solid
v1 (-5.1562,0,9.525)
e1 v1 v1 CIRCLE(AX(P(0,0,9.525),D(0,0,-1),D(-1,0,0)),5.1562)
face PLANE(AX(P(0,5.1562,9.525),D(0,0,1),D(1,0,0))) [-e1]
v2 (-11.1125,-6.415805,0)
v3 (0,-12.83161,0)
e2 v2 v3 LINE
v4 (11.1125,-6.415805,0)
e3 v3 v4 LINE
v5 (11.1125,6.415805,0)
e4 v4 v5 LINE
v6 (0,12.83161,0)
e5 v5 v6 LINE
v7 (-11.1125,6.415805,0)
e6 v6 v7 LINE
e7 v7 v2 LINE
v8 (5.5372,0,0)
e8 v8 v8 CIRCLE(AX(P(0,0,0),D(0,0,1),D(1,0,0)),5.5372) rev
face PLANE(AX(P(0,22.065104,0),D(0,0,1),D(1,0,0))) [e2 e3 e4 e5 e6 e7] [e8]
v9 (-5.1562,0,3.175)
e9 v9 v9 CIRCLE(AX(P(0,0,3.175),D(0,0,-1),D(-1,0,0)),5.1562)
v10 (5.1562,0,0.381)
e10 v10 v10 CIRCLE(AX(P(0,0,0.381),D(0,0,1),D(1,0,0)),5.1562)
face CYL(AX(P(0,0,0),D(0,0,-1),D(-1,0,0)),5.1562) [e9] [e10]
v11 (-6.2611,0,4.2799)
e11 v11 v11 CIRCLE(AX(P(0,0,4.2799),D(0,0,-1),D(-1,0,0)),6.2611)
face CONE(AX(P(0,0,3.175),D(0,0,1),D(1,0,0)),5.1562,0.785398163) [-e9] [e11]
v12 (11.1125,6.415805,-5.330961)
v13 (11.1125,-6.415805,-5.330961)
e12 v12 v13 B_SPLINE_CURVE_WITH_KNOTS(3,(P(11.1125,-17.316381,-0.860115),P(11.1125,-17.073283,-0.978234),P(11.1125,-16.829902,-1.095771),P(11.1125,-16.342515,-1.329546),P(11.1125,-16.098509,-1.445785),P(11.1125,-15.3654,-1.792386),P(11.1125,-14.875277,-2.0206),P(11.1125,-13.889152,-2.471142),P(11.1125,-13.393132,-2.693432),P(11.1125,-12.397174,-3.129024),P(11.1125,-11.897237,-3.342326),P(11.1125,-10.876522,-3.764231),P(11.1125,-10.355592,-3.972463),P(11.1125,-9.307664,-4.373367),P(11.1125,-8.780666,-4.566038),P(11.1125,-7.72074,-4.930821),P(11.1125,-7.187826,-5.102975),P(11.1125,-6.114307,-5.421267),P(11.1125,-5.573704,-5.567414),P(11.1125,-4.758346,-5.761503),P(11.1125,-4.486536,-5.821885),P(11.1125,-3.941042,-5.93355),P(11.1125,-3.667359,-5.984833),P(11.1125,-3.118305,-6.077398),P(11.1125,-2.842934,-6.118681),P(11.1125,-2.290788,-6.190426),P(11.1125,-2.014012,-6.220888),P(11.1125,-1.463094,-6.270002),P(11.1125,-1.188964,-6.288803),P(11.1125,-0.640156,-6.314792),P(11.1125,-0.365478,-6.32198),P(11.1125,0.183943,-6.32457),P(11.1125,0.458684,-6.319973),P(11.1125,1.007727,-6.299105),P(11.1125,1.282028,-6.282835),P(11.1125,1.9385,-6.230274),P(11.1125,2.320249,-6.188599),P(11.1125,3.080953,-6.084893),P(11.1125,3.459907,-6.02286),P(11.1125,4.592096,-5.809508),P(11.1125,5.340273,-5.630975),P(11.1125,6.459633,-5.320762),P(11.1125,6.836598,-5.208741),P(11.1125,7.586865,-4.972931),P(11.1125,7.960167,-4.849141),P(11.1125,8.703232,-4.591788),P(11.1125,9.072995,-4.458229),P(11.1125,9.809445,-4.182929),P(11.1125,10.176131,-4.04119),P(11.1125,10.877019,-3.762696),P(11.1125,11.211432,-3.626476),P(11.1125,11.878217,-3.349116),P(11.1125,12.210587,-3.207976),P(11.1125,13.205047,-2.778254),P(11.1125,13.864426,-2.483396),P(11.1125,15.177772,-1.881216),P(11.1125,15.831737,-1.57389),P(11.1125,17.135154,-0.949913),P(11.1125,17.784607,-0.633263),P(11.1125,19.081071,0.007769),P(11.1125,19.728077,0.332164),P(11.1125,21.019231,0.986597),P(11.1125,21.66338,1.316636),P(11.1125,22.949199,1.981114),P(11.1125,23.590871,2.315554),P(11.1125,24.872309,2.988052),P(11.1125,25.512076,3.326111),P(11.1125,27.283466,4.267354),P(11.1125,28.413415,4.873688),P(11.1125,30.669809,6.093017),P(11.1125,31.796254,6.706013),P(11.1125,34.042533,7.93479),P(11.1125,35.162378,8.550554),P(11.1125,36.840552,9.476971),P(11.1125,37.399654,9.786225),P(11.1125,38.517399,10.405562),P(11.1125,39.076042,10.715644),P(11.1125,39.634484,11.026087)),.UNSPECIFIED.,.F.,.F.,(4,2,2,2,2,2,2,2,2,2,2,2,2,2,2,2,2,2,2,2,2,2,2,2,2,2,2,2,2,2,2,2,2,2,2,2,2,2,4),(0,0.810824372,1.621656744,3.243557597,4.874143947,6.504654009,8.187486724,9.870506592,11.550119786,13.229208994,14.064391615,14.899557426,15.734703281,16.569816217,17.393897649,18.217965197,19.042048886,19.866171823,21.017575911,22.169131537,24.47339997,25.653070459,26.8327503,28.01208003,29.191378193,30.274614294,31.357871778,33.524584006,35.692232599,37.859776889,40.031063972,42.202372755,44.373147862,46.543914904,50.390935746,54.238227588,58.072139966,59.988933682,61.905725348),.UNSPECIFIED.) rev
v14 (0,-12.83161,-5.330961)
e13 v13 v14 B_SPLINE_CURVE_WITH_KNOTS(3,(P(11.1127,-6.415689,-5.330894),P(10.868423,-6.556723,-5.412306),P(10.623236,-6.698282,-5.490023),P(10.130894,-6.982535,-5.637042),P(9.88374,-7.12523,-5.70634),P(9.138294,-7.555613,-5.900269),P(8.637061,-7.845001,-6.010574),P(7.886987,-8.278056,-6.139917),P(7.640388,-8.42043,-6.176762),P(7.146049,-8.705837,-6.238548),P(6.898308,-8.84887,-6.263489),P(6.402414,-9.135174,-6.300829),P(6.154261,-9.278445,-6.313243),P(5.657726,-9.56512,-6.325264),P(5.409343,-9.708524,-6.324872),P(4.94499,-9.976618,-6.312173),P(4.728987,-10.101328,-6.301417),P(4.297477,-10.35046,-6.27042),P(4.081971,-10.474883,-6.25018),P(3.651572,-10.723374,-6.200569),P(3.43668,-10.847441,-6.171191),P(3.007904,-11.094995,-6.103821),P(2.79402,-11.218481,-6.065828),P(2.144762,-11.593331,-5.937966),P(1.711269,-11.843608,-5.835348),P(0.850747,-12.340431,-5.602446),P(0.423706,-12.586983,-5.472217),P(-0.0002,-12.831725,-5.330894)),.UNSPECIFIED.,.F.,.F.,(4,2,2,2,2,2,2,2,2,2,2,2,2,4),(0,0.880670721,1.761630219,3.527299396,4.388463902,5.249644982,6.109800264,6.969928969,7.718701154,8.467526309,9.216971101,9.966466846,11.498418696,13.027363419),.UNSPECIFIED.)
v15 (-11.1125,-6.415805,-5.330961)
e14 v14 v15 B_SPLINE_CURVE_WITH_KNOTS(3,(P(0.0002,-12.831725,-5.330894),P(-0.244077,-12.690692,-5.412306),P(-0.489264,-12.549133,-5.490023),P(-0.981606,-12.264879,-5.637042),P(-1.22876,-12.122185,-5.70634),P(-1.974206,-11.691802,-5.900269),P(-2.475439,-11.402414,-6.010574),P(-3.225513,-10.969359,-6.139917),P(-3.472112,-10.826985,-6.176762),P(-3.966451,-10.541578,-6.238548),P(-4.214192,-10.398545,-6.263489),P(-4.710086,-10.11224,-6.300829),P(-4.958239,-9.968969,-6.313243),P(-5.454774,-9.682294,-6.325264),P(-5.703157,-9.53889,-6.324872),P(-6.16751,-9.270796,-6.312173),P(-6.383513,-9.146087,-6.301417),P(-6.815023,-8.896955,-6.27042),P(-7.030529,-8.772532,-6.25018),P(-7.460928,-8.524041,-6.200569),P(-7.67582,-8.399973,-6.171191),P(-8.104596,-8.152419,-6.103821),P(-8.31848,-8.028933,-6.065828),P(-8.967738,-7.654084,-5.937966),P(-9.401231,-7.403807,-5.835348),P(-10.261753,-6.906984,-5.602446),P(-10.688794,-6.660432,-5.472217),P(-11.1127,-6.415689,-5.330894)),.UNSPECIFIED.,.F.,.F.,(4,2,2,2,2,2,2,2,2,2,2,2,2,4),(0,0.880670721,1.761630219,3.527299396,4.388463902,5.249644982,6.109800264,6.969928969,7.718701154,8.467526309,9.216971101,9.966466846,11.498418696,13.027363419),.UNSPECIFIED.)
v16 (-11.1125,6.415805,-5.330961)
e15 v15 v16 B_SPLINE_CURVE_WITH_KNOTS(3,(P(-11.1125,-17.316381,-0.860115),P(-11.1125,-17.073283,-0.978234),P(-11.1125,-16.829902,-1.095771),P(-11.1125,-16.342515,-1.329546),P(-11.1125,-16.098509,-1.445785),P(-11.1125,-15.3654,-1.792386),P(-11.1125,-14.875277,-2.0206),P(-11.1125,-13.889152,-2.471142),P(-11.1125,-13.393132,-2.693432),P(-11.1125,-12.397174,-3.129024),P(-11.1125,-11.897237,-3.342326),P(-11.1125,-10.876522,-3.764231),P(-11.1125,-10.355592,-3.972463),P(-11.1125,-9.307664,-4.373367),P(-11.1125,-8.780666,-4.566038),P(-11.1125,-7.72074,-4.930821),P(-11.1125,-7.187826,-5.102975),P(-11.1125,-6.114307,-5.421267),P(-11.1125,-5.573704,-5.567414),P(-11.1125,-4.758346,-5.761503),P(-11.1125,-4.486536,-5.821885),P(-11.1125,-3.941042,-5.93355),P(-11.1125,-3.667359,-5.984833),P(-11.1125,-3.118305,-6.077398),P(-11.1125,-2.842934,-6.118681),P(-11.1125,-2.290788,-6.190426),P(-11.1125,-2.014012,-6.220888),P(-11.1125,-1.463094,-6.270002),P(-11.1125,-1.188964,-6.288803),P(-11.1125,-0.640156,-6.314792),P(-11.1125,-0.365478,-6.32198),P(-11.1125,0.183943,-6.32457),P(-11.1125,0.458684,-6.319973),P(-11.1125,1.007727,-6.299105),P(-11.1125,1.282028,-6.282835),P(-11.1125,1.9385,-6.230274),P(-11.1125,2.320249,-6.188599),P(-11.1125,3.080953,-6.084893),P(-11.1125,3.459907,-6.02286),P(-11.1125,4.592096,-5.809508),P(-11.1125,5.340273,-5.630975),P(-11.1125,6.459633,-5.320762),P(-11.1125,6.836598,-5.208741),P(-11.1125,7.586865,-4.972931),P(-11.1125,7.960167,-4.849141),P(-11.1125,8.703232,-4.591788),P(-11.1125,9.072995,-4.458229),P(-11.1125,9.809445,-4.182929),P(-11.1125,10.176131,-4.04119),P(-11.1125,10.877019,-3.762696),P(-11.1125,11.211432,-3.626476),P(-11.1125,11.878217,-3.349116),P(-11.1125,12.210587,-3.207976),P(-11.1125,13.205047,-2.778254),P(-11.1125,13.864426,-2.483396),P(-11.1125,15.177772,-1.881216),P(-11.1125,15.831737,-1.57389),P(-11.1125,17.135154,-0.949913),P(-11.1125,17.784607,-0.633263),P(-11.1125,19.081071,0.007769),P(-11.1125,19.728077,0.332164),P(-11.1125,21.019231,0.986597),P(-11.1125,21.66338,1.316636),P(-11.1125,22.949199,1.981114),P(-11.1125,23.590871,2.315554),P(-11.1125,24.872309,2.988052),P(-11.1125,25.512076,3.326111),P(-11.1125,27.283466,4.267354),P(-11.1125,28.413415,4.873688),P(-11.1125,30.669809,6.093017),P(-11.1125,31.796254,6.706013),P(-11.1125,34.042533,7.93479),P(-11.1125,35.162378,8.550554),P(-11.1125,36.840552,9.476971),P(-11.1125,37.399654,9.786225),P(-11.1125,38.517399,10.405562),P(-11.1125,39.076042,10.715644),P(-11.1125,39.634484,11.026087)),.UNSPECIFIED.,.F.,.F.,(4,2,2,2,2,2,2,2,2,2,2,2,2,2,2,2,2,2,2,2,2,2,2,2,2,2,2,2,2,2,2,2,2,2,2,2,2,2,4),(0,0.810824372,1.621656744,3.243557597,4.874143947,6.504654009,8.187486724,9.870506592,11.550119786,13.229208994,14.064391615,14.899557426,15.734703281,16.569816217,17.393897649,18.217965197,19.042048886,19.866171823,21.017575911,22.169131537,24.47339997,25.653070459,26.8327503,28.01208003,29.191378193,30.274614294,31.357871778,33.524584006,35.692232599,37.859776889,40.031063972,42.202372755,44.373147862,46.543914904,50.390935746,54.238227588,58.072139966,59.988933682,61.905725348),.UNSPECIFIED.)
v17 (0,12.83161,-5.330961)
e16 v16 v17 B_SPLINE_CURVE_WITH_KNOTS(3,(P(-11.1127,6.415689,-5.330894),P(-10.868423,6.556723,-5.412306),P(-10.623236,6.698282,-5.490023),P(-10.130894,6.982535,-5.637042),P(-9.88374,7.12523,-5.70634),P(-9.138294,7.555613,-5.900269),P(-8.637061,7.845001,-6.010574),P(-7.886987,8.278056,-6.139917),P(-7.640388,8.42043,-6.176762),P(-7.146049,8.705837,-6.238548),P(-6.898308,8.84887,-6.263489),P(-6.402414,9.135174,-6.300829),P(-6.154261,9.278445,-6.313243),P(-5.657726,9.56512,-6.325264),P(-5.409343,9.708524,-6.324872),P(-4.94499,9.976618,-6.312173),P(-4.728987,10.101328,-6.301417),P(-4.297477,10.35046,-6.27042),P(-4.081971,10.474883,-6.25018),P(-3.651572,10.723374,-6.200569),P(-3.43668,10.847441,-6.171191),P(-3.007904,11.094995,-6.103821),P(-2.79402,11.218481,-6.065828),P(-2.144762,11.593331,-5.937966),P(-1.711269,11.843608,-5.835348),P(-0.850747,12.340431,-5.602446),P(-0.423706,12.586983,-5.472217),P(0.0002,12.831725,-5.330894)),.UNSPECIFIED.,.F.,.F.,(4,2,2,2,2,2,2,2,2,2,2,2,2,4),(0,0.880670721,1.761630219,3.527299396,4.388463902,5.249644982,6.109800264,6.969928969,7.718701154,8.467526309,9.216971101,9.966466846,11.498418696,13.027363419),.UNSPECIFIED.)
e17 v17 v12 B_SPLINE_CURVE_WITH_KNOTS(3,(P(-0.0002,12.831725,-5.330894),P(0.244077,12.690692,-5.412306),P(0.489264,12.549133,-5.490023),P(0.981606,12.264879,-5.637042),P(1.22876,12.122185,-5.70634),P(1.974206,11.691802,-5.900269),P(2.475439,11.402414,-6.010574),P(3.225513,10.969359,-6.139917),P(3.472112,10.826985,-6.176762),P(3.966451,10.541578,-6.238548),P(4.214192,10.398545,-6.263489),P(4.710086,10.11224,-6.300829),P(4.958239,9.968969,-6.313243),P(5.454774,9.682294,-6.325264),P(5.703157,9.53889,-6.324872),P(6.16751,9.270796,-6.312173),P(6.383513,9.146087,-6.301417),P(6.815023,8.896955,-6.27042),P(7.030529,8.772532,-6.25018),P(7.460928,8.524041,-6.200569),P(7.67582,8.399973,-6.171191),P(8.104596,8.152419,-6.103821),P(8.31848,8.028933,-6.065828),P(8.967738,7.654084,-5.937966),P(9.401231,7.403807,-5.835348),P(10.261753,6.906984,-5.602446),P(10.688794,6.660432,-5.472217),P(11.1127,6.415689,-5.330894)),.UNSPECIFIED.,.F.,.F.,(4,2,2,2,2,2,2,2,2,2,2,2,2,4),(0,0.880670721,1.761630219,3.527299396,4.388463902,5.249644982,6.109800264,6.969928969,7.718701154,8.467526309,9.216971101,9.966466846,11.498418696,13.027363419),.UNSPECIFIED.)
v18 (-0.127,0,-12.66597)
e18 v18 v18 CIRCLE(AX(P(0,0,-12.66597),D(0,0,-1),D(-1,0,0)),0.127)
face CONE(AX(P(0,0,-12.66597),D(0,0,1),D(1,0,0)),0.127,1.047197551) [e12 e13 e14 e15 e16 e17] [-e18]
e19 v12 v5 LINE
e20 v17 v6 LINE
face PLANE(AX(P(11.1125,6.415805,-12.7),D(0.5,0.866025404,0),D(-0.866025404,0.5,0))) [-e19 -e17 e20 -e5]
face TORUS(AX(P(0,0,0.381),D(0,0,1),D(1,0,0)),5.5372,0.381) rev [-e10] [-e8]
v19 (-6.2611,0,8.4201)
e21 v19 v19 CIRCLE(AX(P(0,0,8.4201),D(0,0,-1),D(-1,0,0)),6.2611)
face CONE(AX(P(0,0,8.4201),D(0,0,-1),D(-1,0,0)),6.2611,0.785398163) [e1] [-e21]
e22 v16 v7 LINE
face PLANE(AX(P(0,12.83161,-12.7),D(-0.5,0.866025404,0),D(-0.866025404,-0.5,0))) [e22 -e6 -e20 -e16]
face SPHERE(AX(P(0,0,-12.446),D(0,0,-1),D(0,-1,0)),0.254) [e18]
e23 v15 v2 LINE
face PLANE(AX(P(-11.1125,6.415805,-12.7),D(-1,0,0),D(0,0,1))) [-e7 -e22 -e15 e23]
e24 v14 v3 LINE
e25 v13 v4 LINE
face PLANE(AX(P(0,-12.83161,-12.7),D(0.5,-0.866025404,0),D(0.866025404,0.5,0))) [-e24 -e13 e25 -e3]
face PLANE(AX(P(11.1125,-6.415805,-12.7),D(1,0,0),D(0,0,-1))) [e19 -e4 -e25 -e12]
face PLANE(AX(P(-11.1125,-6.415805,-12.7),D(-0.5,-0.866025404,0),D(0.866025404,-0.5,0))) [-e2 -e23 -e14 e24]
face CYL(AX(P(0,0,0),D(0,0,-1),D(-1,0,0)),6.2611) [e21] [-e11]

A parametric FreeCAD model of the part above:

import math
import FreeCAD as App
import Part
import Sketcher
Q = App.Units.Quantity


def edges_at(feature, points):
    """Names of the edges that pass closest to the given points."""
    edges = feature.Shape.Edges
    near = lambda p: min(range(len(edges)), key=lambda i: edges[i].distToShape(Part.Vertex(*p))[0])
    return sorted({f"Edge{near(p) + 1}" for p in points})

doc = App.newDocument("Part")
body = doc.addObject("PartDesign::Body", "Body")

sketch1 = body.newObject("Sketcher::SketchObject", "Sketch")
sketch1.AttachmentSupport = (doc.getObject("YZ_Plane"), [""])
sketch1.MapMode = "FlatFace"
sketch1.addGeometry(Part.LineSegment(App.Vector(22.07, 0, 0), App.Vector(5.16, 0, 0)), False)
sketch1.addGeometry(Part.LineSegment(App.Vector(5.16, 0, 0), App.Vector(5.16, 3.17, 0)), False)
sketch1.addGeometry(Part.LineSegment(App.Vector(5.16, 3.17, 0), App.Vector(6.26, 4.28, 0)), False)
sketch1.addGeometry(Part.LineSegment(App.Vector(6.26, 4.28, 0), App.Vector(6.26, 8.42, 0)), False)
sketch1.addGeometry(Part.LineSegment(App.Vector(6.26, 8.42, 0), App.Vector(5.16, 9.53, 0)), False)
sketch1.addGeometry(Part.LineSegment(App.Vector(5.16, 9.53, 0), App.Vector(0, 9.53, 0)), False)
sketch1.addGeometry(Part.LineSegment(App.Vector(0, 9.53, 0), App.Vector(0, -12.7, 0)), False)
sketch1.addGeometry(Part.ArcOfCircle(Part.Circle(App.Vector(0, -12.45, 0), App.Vector(0, 0, 1), 0.25), math.radians(-90), math.radians(-60)), False)
sketch1.addGeometry(Part.LineSegment(App.Vector(0.13, -12.67, 0), App.Vector(22.07, 0, 0)), False)
sketch1.addConstraint(Sketcher.Constraint("Coincident", 0, 2, 1, 1))
sketch1.addConstraint(Sketcher.Constraint("Coincident", 1, 2, 2, 1))
sketch1.addConstraint(Sketcher.Constraint("Coincident", 2, 2, 3, 1))
sketch1.addConstraint(Sketcher.Constraint("Coincident", 3, 2, 4, 1))
sketch1.addConstraint(Sketcher.Constraint("Coincident", 4, 2, 5, 1))
sketch1.addConstraint(Sketcher.Constraint("Coincident", 5, 2, 6, 1))
sketch1.addConstraint(Sketcher.Constraint("Coincident", 6, 2, 7, 1))
sketch1.addConstraint(Sketcher.Constraint("Tangent", 7, 2, 8, 1))
sketch1.addConstraint(Sketcher.Constraint("Coincident", 8, 2, 0, 1))
sketch1.addConstraint(Sketcher.Constraint("Horizontal", 0))
sketch1.addConstraint(Sketcher.Constraint("Vertical", 1))
sketch1.addConstraint(Sketcher.Constraint("Vertical", 3))
sketch1.addConstraint(Sketcher.Constraint("Horizontal", 5))
sketch1.addConstraint(Sketcher.Constraint("Vertical", 6))
sketch1.addConstraint(Sketcher.Constraint("PointOnObject", 7, 3, -2))
sketch1.addConstraint(Sketcher.Constraint("PointOnObject", 0, 2, -1))
sketch1.addConstraint(Sketcher.Constraint("PointOnObject", 5, 2, -2))
sketch1.addConstraint(Sketcher.Constraint("Perpendicular", 2, 4))
sketch1.addConstraint(Sketcher.Constraint("Vertical", 1, 2, 4, 2))
sketch1.addConstraint(Sketcher.Constraint("Equal", 2, 4))
sketch1.addConstraint(Sketcher.Constraint("Radius", 7, Q("0.01 in")))
sketch1.addConstraint(Sketcher.Constraint("Angle", 8, Q("30 deg")))
sketch1.addConstraint(Sketcher.Constraint("DistanceY", 6, 2, -1, 1, Q("0.5 in")))
sketch1.addConstraint(Sketcher.Constraint("DistanceX", 5, 2, 5, 1, Q("0.203 in")))
sketch1.addConstraint(Sketcher.Constraint("DistanceY", 1, 1, 1, 2, Q("0.125 in")))
sketch1.addConstraint(Sketcher.Constraint("DistanceY", 3, 1, 3, 2, Q("0.163 in")))
sketch1.addConstraint(Sketcher.Constraint("DistanceY", 6, 2, 6, 1, Q("0.875 in")))
revolution = body.newObject("PartDesign::Revolution", "Revolution")
revolution.Profile = sketch1
revolution.ReferenceAxis = (sketch1, ["V_Axis"])
revolution.Angle = 360

sketch2 = body.newObject("Sketcher::SketchObject", "Sketch001")
sketch2.AttachmentSupport = (doc.getObject("XY_Plane"), [""])
sketch2.MapMode = "FlatFace"
sketch2.addGeometry(Part.LineSegment(App.Vector(-30, 30, 0), App.Vector(-30, -30, 0)), False)
sketch2.addGeometry(Part.LineSegment(App.Vector(-30, -30, 0), App.Vector(30, -30, 0)), False)
sketch2.addGeometry(Part.LineSegment(App.Vector(30, -30, 0), App.Vector(30, 30, 0)), False)
sketch2.addGeometry(Part.LineSegment(App.Vector(30, 30, 0), App.Vector(-30, 30, 0)), False)
sketch2.addGeometry(Part.LineSegment(App.Vector(-11, 6, 0), App.Vector(0, 13, 0)), False)
sketch2.addGeometry(Part.LineSegment(App.Vector(0, 13, 0), App.Vector(11, 6, 0)), False)
sketch2.addGeometry(Part.LineSegment(App.Vector(11, 6, 0), App.Vector(11, -6, 0)), False)
sketch2.addGeometry(Part.LineSegment(App.Vector(11, -6, 0), App.Vector(0, -13, 0)), False)
sketch2.addGeometry(Part.LineSegment(App.Vector(0, -13, 0), App.Vector(-11, -6, 0)), False)
sketch2.addGeometry(Part.LineSegment(App.Vector(-11, -6, 0), App.Vector(-11, 6, 0)), False)
sketch2.addConstraint(Sketcher.Constraint("Coincident", 0, 2, 1, 1))
sketch2.addConstraint(Sketcher.Constraint("Coincident", 1, 2, 2, 1))
sketch2.addConstraint(Sketcher.Constraint("Coincident", 2, 2, 3, 1))
sketch2.addConstraint(Sketcher.Constraint("Coincident", 3, 2, 0, 1))
sketch2.addConstraint(Sketcher.Constraint("Coincident", 4, 2, 5, 1))
sketch2.addConstraint(Sketcher.Constraint("Coincident", 5, 2, 6, 1))
sketch2.addConstraint(Sketcher.Constraint("Coincident", 6, 2, 7, 1))
sketch2.addConstraint(Sketcher.Constraint("Coincident", 7, 2, 8, 1))
sketch2.addConstraint(Sketcher.Constraint("Coincident", 8, 2, 9, 1))
sketch2.addConstraint(Sketcher.Constraint("Coincident", 9, 2, 4, 1))
sketch2.addConstraint(Sketcher.Constraint("Vertical", 0))
sketch2.addConstraint(Sketcher.Constraint("Horizontal", 1))
sketch2.addConstraint(Sketcher.Constraint("Vertical", 2))
sketch2.addConstraint(Sketcher.Constraint("Horizontal", 3))
sketch2.addConstraint(Sketcher.Constraint("Vertical", 6))
sketch2.addConstraint(Sketcher.Constraint("Vertical", 9))
sketch2.addConstraint(Sketcher.Constraint("Symmetric", 0, 2, 2, 2, -1, 1))
sketch2.addConstraint(Sketcher.Constraint("Symmetric", 4, 2, 7, 2, -1, 1))
sketch2.addConstraint(Sketcher.Constraint("Symmetric", 5, 2, 8, 2, -1, 1))
sketch2.addConstraint(Sketcher.Constraint("PointOnObject", 4, 2, -2))
sketch2.addConstraint(Sketcher.Constraint("Parallel", 4, 7))
sketch2.addConstraint(Sketcher.Constraint("Horizontal", 6, 2, 8, 2))
sketch2.addConstraint(Sketcher.Constraint("Equal", 3, 0))
sketch2.addConstraint(Sketcher.Constraint("Angle", 4, Q("30 deg")))
sketch2.addConstraint(Sketcher.Constraint("DistanceX", -1, 1, 5, 2, Q("0.4375 in")))
sketch2.addConstraint(Sketcher.Constraint("DistanceX", 1, 1, 1, 2, 59.38))
sketch2.addConstraint(Sketcher.Constraint("DistanceY", 6, 2, 6, 1, 12.83161))
pocket1 = body.newObject("PartDesign::Pocket", "Pocket")
pocket1.Profile = sketch2
pocket1.Type = "ThroughAll"
doc.recompute()

fillet = body.newObject("PartDesign::Fillet", "Fillet")
fillet.Base = (pocket1, edges_at(pocket1, [(5.156, 0, 0)]))
fillet.Radius = Q("0.015 in")

doc.recompute()
